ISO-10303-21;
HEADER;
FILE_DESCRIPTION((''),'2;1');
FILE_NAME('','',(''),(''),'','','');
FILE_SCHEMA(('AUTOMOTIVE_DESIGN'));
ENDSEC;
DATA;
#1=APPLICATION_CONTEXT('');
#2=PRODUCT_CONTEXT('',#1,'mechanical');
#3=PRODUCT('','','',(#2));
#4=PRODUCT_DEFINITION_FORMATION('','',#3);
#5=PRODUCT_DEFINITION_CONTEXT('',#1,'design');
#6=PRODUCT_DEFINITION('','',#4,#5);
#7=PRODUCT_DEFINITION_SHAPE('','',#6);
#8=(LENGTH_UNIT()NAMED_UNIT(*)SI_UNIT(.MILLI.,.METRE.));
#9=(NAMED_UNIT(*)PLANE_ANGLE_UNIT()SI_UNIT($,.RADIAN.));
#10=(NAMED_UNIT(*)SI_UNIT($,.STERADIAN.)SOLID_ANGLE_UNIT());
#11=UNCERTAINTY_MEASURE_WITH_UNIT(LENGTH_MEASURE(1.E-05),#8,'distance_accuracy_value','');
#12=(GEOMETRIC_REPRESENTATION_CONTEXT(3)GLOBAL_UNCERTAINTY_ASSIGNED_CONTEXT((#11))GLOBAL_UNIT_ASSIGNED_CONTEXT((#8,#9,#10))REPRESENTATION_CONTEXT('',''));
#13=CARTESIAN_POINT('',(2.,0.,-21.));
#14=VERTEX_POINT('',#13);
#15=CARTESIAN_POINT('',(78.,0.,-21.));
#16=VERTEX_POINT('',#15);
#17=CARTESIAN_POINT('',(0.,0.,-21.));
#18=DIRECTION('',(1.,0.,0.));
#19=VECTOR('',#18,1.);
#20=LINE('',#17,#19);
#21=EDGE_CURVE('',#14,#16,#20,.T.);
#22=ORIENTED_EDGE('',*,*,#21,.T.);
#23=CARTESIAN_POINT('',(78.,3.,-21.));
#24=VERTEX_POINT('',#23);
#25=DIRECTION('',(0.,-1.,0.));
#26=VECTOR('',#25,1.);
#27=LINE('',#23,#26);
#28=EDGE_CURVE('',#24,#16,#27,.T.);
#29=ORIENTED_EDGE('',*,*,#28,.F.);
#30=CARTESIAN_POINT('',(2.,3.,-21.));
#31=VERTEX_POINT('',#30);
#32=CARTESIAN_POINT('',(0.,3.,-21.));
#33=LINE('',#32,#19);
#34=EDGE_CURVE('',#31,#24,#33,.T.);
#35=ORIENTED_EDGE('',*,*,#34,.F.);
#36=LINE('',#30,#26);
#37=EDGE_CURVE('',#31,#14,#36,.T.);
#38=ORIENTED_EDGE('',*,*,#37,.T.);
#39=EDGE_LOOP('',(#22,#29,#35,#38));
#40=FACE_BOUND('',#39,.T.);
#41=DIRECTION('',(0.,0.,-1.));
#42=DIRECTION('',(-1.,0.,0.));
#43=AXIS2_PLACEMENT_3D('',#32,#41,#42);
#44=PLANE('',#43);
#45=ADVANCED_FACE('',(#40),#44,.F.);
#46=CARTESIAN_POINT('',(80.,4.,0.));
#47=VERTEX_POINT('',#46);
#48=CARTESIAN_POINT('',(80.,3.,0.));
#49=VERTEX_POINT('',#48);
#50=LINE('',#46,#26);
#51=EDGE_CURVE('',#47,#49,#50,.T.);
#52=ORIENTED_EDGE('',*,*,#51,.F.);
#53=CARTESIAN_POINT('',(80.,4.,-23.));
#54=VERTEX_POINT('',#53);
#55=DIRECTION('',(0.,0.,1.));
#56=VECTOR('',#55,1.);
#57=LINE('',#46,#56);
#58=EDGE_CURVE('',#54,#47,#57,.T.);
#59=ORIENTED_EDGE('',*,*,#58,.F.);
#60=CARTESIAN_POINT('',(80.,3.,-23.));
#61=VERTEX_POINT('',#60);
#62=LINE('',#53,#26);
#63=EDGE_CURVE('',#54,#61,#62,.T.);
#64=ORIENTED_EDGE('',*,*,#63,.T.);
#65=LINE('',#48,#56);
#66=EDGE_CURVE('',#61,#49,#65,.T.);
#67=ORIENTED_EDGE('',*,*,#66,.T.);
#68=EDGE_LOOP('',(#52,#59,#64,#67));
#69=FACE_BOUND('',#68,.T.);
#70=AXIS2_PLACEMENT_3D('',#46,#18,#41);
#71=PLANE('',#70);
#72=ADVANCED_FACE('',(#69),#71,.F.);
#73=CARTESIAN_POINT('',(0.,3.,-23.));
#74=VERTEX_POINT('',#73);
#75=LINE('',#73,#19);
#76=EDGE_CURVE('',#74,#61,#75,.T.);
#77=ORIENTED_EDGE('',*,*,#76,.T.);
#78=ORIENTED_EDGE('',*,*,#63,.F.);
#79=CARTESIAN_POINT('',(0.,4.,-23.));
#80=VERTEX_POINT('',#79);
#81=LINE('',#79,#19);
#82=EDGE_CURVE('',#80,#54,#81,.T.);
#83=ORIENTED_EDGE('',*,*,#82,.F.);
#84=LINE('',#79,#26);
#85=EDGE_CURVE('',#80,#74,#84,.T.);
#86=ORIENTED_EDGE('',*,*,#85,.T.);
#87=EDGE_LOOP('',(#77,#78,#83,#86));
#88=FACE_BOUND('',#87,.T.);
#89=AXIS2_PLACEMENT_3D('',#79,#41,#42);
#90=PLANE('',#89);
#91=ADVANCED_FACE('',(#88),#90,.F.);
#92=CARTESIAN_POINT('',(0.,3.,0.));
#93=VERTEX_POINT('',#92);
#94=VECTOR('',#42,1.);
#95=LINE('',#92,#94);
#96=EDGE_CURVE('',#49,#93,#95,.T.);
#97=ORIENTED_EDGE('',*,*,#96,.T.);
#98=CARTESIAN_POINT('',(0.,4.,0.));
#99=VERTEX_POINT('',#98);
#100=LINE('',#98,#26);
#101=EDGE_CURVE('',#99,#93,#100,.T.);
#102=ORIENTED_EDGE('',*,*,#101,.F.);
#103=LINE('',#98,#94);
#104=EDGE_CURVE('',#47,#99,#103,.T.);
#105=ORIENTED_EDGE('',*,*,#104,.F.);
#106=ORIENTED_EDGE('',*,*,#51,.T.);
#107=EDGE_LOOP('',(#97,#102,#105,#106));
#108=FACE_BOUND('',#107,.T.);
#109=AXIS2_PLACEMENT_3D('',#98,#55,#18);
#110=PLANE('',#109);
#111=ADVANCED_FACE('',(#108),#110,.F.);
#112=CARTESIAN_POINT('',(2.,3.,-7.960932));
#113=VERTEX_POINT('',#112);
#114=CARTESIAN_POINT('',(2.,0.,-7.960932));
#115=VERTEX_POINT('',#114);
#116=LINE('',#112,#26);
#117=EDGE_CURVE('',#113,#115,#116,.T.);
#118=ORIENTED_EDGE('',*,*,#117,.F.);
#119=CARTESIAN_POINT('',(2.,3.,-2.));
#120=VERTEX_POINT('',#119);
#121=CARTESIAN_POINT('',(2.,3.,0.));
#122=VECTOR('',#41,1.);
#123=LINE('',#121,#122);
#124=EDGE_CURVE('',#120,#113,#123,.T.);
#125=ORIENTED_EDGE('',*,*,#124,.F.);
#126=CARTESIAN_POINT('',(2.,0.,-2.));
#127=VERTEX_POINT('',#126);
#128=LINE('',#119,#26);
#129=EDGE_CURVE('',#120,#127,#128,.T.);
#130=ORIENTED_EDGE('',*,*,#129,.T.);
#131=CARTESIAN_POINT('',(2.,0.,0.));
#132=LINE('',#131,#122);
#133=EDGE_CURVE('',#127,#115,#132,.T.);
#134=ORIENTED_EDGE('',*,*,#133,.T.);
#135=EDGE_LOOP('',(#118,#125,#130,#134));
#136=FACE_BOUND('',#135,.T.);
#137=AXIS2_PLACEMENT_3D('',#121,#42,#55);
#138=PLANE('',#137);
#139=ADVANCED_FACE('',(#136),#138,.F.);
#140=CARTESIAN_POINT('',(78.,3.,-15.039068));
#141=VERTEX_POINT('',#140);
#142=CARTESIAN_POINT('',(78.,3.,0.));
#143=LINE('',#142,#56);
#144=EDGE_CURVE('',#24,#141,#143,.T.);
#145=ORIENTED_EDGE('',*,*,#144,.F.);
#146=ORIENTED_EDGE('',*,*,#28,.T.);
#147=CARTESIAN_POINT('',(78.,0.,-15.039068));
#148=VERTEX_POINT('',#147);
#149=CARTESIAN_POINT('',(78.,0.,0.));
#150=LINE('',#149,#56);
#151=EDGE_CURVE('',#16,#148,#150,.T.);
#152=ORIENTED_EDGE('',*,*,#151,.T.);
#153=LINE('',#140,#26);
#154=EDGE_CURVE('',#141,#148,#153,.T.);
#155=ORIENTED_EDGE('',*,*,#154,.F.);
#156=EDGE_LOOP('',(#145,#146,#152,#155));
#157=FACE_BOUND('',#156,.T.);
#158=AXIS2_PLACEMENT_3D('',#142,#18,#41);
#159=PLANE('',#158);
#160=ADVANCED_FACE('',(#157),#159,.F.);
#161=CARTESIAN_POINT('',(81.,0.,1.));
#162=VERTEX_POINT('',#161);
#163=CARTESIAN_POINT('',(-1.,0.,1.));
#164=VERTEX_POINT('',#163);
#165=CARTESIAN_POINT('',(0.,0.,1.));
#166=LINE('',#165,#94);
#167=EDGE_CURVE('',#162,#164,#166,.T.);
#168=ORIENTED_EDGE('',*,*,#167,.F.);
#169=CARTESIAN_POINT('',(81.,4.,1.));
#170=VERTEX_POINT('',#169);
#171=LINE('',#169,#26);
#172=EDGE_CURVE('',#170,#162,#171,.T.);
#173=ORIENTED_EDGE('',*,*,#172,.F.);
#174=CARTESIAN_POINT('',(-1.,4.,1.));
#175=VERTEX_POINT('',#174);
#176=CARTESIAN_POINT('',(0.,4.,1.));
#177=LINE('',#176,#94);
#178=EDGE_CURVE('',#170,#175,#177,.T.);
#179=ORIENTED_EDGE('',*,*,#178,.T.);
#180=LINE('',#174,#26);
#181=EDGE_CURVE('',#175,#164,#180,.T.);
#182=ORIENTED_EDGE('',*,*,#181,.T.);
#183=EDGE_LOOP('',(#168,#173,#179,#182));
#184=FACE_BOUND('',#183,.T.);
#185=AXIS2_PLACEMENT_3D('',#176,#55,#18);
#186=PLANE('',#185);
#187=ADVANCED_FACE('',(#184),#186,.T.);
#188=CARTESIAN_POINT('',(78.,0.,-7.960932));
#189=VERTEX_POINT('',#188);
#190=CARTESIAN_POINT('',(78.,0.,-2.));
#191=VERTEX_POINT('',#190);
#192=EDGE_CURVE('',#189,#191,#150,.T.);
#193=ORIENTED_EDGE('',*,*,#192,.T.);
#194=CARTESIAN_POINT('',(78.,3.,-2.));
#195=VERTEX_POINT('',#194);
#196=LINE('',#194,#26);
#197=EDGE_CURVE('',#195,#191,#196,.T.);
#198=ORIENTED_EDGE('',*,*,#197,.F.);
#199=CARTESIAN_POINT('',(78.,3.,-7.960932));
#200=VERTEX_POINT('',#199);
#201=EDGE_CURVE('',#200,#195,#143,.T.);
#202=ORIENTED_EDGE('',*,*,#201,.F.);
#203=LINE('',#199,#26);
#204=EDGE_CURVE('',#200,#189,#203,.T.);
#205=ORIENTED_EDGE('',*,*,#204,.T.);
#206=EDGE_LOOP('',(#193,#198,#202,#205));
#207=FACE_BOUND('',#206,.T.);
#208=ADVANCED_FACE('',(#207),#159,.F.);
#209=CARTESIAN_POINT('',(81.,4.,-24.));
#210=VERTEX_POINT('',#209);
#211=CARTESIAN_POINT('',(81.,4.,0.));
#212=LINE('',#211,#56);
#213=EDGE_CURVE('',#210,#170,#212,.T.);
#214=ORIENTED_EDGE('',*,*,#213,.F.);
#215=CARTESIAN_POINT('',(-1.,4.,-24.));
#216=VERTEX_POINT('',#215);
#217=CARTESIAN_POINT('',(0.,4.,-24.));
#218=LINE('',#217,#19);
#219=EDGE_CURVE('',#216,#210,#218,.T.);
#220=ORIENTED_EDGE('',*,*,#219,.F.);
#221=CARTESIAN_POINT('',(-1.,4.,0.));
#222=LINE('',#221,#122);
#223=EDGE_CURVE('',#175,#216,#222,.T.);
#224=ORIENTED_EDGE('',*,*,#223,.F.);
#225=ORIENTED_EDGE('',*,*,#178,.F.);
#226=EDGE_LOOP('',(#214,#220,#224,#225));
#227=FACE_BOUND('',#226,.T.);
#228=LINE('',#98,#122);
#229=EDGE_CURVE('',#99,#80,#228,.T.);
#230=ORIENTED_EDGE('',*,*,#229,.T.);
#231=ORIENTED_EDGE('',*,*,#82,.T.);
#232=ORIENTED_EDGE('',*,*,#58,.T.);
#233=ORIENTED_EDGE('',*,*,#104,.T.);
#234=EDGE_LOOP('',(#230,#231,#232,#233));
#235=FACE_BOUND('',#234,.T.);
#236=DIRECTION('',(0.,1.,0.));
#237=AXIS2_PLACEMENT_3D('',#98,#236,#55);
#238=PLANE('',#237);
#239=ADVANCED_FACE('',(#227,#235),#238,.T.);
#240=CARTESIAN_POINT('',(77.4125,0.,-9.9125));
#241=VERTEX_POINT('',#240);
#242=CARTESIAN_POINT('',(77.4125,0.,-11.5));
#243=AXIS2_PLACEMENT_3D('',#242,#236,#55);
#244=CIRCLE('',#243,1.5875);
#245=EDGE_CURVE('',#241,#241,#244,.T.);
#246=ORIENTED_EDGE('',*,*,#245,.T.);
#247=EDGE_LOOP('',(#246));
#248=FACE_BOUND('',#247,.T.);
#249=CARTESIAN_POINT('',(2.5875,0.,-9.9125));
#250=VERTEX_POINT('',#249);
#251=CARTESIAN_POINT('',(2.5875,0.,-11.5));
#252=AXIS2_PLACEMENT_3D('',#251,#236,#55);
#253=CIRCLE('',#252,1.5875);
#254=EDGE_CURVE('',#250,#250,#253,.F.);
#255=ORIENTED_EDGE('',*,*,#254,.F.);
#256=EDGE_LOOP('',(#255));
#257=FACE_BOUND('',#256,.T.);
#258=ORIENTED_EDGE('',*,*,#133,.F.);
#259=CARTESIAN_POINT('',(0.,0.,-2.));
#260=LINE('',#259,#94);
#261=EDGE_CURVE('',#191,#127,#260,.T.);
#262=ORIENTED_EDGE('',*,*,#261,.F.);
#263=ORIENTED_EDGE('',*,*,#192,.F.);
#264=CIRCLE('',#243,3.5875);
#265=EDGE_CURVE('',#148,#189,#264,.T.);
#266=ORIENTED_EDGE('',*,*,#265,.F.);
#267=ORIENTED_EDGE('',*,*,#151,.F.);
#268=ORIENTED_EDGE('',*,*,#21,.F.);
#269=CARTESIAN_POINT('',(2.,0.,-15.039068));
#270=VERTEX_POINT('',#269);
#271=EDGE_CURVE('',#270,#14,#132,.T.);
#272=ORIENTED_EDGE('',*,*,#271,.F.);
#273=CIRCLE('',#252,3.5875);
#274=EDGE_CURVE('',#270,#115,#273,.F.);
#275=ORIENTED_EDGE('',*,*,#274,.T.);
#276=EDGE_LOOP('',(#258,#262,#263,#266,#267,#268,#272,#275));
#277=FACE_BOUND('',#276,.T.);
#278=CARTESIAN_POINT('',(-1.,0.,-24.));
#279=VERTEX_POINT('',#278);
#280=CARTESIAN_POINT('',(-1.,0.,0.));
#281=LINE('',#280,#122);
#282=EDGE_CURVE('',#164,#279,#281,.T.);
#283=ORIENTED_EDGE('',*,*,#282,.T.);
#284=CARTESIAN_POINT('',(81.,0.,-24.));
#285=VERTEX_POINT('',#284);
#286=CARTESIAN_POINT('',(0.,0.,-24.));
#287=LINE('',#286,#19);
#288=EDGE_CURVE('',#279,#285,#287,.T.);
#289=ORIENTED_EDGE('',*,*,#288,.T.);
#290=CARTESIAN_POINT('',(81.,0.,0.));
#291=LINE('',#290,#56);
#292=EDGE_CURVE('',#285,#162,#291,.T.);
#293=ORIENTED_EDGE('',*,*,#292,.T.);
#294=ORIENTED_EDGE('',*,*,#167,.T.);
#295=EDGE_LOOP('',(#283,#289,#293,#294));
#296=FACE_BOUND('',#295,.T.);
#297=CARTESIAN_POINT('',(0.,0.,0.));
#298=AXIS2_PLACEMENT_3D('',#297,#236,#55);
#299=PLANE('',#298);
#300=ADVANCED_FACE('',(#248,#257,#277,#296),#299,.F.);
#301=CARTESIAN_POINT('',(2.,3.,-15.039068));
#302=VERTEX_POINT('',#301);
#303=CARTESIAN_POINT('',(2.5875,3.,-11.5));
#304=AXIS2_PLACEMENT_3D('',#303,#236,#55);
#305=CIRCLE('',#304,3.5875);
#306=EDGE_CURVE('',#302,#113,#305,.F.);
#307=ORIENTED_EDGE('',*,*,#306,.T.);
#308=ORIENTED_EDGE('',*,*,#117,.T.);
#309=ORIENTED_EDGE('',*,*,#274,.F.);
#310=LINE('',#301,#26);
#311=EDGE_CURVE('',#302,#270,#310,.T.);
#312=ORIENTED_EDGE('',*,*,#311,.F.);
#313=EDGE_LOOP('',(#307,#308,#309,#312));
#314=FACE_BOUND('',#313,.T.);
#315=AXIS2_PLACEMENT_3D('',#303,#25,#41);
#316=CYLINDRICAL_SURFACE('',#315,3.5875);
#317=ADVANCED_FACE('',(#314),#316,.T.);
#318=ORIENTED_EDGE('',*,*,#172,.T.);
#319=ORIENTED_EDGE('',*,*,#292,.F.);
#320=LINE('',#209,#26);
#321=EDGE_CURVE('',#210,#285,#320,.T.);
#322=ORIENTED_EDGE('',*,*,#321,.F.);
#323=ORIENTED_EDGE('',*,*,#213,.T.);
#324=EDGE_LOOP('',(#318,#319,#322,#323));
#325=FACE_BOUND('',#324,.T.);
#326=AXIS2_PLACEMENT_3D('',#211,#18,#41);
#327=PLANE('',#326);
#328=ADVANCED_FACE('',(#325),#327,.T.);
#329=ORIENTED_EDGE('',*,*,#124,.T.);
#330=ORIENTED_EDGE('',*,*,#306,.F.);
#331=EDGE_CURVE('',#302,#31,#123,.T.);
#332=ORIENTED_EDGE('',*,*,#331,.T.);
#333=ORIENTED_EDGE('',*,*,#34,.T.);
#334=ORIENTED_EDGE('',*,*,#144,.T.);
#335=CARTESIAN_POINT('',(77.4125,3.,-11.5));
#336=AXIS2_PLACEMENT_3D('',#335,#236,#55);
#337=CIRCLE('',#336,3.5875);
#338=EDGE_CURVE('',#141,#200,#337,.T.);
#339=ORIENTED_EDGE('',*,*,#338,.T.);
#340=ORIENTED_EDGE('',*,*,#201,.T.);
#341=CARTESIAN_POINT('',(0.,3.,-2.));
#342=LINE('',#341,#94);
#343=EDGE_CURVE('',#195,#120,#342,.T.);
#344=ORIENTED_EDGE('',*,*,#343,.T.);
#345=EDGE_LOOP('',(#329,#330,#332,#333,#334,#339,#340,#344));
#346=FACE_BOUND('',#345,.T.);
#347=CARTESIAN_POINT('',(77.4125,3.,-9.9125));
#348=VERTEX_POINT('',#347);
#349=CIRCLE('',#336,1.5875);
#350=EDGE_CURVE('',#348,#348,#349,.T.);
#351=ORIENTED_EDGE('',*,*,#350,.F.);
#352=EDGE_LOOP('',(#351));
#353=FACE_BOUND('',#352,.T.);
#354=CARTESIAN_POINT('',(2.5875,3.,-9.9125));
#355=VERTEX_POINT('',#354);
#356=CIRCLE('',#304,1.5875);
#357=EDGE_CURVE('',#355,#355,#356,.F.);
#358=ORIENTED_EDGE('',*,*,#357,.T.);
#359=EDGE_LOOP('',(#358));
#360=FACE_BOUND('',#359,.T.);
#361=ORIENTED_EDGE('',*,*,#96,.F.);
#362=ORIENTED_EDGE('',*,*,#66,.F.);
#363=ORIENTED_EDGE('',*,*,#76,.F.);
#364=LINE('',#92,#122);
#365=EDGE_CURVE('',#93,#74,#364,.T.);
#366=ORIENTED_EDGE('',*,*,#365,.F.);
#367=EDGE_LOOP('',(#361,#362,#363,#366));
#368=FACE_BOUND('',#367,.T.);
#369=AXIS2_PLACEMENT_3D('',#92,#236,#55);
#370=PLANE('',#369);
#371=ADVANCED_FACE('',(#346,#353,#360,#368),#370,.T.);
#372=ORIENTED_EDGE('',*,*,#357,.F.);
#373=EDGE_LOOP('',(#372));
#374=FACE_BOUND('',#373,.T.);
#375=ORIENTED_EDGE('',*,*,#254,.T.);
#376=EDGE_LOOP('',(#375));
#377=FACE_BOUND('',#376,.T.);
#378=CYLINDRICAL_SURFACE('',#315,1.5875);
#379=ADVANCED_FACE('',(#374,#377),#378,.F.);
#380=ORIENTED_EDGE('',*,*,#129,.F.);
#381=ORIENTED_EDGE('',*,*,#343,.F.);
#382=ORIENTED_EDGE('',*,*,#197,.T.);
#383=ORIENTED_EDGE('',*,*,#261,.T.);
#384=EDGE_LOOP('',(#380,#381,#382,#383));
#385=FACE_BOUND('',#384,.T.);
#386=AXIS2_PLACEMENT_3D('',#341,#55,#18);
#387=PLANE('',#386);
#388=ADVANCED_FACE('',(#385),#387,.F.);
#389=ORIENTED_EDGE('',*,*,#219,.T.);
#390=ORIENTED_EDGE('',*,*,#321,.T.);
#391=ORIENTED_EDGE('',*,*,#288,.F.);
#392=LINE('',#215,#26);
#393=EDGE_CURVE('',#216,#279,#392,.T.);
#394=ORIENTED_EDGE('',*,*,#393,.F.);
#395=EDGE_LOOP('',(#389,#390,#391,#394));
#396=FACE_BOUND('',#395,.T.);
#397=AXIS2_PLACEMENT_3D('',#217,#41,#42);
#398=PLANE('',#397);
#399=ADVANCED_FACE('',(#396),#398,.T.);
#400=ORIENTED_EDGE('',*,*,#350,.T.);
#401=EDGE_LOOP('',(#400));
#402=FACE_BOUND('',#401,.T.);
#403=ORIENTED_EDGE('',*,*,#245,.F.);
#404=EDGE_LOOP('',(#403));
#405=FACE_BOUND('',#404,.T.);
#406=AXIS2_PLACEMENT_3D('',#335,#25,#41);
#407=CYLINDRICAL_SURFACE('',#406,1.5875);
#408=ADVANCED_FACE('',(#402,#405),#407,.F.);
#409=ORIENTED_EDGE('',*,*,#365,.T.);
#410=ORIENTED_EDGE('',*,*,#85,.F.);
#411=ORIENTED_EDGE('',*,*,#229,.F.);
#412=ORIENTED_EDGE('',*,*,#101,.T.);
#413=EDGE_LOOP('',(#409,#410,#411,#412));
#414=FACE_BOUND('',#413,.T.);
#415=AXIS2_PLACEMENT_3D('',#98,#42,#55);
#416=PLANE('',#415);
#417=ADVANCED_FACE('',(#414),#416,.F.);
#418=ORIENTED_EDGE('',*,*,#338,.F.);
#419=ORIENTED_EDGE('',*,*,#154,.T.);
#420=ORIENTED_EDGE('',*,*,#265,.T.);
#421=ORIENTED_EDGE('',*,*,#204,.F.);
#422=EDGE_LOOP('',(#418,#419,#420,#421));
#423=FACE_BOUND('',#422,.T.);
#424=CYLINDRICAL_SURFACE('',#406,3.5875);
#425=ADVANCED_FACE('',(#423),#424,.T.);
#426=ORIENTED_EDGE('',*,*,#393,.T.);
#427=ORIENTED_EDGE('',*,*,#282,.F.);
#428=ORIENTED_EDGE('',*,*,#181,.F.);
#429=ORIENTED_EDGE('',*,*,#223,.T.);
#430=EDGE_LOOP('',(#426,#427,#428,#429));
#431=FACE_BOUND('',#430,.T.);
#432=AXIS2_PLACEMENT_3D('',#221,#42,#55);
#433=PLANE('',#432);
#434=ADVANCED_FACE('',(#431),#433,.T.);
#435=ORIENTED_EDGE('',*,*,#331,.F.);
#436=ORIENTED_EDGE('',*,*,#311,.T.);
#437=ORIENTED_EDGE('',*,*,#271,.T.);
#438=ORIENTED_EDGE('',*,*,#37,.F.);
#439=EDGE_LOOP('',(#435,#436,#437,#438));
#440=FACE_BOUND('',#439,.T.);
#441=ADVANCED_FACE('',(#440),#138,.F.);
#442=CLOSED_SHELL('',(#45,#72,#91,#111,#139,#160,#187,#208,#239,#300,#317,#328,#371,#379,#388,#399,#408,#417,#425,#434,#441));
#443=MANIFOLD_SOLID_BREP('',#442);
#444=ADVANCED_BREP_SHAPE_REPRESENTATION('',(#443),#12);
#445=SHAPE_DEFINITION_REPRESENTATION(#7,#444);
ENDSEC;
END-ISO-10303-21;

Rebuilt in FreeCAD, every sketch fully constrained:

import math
import FreeCAD as App
import Part
import Sketcher
Q = App.Units.Quantity


def add_polygon(sketch, points):
    """Adds a closed chain of lines whose ends are joined by coincident constraints."""
    first, n = sketch.GeometryCount, len(points)
    for a, b in zip(points, points[1:] + points[:1]):
        sketch.addGeometry(Part.LineSegment(App.Vector(*a, 0), App.Vector(*b, 0)), False)
    for i in range(n):
        sketch.addConstraint(Sketcher.Constraint("Coincident", first + i, 2, first + (i + 1) % n, 1))

doc = App.newDocument("Part")
body = doc.addObject("PartDesign::Body", "Body")

# Sketch on XZ plane
sketch1 = doc.addObject("Sketcher::SketchObject", "Sketch")
body.addObject(sketch1)
sketch1.AttachmentSupport = (doc.XZ_Plane, [""])
sketch1.MapMode = "FlatFace"
add_polygon(sketch1, [(0, -23), (0, 0), (80, 0), (80, -23)])  # lines 0-3
sketch1.addGeometry(Part.Circle(App.Vector(2.6, -11.5, 0), App.Vector(0, 0, 1), 1.6), False)  # 4
sketch1.addGeometry(Part.ArcOfCircle(Part.Circle(App.Vector(2.6, -11.5, 0), App.Vector(0, 0, 1), 3.6), math.radians(-99), math.radians(99)), False)  # 5
sketch1.addGeometry(Part.LineSegment(App.Vector(2, -15, 0), App.Vector(2, -21, 0)), False)  # 6
sketch1.addGeometry(Part.LineSegment(App.Vector(2, -21, 0), App.Vector(78, -21, 0)), False)  # 7
sketch1.addGeometry(Part.LineSegment(App.Vector(78, -21, 0), App.Vector(78, -15, 0)), False)  # 8
sketch1.addGeometry(Part.ArcOfCircle(Part.Circle(App.Vector(77.4, -11.5, 0), App.Vector(0, 0, 1), 3.6), math.radians(81), math.radians(279)), False)  # 9
sketch1.addGeometry(Part.LineSegment(App.Vector(78, -8, 0), App.Vector(78, -2, 0)), False)  # 10
sketch1.addGeometry(Part.LineSegment(App.Vector(78, -2, 0), App.Vector(2, -2, 0)), False)  # 11
sketch1.addGeometry(Part.LineSegment(App.Vector(2, -2, 0), App.Vector(2, -8, 0)), False)  # 12
sketch1.addGeometry(Part.Circle(App.Vector(77.4, -11.5, 0), App.Vector(0, 0, 1), 1.6), False)  # 13
sketch1.addConstraint([
    Sketcher.Constraint("Coincident", 5, 1, 6, 1),
    Sketcher.Constraint("Coincident", 6, 2, 7, 1),
    Sketcher.Constraint("Coincident", 7, 2, 8, 1),
    Sketcher.Constraint("Coincident", 8, 2, 9, 2),
    Sketcher.Constraint("Coincident", 9, 1, 10, 1),
    Sketcher.Constraint("Coincident", 10, 2, 11, 1),
    Sketcher.Constraint("Coincident", 11, 2, 12, 1),
    Sketcher.Constraint("Coincident", 12, 2, 5, 2),
    Sketcher.Constraint("Vertical", 0),
    Sketcher.Constraint("Horizontal", 1),
    Sketcher.Constraint("Vertical", 2),
    Sketcher.Constraint("Horizontal", 3),
    Sketcher.Constraint("Vertical", 6),
    Sketcher.Constraint("Horizontal", 7),
    Sketcher.Constraint("Vertical", 8),
    Sketcher.Constraint("Vertical", 10),
    Sketcher.Constraint("Horizontal", 11),
    Sketcher.Constraint("Vertical", 12),
    Sketcher.Constraint("Coincident", 0, 2, -1, 1),
    Sketcher.Constraint("Coincident", 5, 3, 4, 3),
    Sketcher.Constraint("Coincident", 13, 3, 9, 3),
    Sketcher.Constraint("Equal", 5, 9),
    Sketcher.Constraint("Equal", 4, 13),
    Sketcher.Constraint("Horizontal", 5, 3, 9, 3),
    Sketcher.Constraint("Horizontal", 5, 1, 8, 2),
    Sketcher.Constraint("Horizontal", 9, 1, 12, 2),
    Sketcher.Constraint("Vertical", 8, 2, 9, 1),
    Sketcher.Constraint("Equal", 8, 10),
    Sketcher.Constraint("DistanceX", 1, 1, 1, 2, Q("80 mm")),
    Sketcher.Constraint("DistanceX", 7, 1, 7, 2, Q("76 mm")),
    Sketcher.Constraint("DistanceY", 0, 1, 0, 2, Q("23 mm")),
    Sketcher.Constraint("Diameter", 4, Q("3.175 mm")),
    Sketcher.Constraint("DistanceX", -1, 1, 5, 1, Q("2 mm")),
    Sketcher.Constraint("DistanceY", 6, 2, -1, 1, Q("21 mm")),
    Sketcher.Constraint("DistanceY", 10, 2, -1, 1, Q("2 mm")),
    Sketcher.Constraint("Radius", 5, Q("3.5875 mm")),
    Sketcher.Constraint("DistanceX", 4, 3, 9, 3, Q("74.825 mm")),
])
pad1 = doc.addObject("PartDesign::Pad", "Pad")
body.addObject(pad1)
pad1.Profile = sketch1
pad1.Length = 3
pad1.Reversed = True

# Sketch on XZ plane
sketch2 = doc.addObject("Sketcher::SketchObject", "Sketch001")
body.addObject(sketch2)
sketch2.AttachmentSupport = (doc.XZ_Plane, [""])
sketch2.MapMode = "FlatFace"
add_polygon(sketch2, [(-1, -24), (-1, 1), (81, 1), (81, -24)])  # lines 0-3
add_polygon(sketch2, [(80, 0), (0, 0), (0, -23), (80, -23)])  # lines 4-7
sketch2.addConstraint([
    Sketcher.Constraint("Vertical", 0),
    Sketcher.Constraint("Horizontal", 1),
    Sketcher.Constraint("Vertical", 2),
    Sketcher.Constraint("Horizontal", 3),
    Sketcher.Constraint("Horizontal", 4),
    Sketcher.Constraint("Vertical", 5),
    Sketcher.Constraint("Horizontal", 6),
    Sketcher.Constraint("Vertical", 7),
    Sketcher.Constraint("Coincident", 4, 2, -1, 1),
    Sketcher.Constraint("DistanceX", 1, 1, 1, 2, Q("82 mm")),
    Sketcher.Constraint("DistanceX", 4, 2, 4, 1, Q("80 mm")),
    Sketcher.Constraint("DistanceY", 0, 1, 0, 2, Q("25 mm")),
    Sketcher.Constraint("DistanceY", 5, 2, 5, 1, Q("23 mm")),
    Sketcher.Constraint("DistanceX", 0, 2, -1, 1, Q("1 mm")),
    Sketcher.Constraint("DistanceY", -1, 1, 0, 2, Q("1 mm")),
])
pad2 = doc.addObject("PartDesign::Pad", "Pad001")
body.addObject(pad2)
pad2.Profile = sketch2
pad2.Length = 4
pad2.Reversed = True

doc.recompute()
